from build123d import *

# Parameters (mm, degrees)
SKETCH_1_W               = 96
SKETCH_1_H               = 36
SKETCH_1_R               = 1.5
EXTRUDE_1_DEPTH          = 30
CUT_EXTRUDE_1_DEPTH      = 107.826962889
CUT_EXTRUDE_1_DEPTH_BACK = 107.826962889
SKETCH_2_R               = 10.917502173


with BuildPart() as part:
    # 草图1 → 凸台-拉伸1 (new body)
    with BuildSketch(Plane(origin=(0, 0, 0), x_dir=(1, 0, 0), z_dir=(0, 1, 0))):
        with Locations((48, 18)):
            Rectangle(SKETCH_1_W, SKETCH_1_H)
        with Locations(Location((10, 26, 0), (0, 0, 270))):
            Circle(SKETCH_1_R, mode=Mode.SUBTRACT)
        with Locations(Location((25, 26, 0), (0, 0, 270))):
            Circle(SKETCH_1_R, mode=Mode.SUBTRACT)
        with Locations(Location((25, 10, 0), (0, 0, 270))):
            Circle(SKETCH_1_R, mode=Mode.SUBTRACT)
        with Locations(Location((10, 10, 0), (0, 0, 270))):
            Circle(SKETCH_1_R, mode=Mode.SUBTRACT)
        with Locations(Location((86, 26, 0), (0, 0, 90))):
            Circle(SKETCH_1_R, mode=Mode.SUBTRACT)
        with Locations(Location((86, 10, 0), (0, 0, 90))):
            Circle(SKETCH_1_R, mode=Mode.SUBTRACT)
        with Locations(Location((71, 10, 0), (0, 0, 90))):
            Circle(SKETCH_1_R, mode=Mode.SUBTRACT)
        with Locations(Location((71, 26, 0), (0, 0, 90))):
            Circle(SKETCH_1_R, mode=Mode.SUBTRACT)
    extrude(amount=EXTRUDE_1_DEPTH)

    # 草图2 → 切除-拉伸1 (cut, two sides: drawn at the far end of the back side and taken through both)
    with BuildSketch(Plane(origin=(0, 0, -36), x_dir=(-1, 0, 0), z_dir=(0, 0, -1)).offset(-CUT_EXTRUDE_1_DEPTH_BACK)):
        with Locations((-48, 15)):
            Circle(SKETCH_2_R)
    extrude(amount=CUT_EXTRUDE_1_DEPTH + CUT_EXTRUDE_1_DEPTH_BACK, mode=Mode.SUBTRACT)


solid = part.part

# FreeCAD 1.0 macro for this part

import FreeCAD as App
import Part
import Sketcher
Q = App.Units.Quantity


def add_polygon(sketch, points):
    """Adds a closed chain of lines whose ends are joined by coincident constraints."""
    first, n = sketch.GeometryCount, len(points)
    for a, b in zip(points, points[1:] + points[:1]):
        sketch.addGeometry(Part.LineSegment(App.Vector(*a, 0), App.Vector(*b, 0)), False)
    for i in range(n):
        sketch.addConstraint(Sketcher.Constraint("Coincident", first + i, 2, first + (i + 1) % n, 1))

doc = App.newDocument("Part")
body = doc.addObject("PartDesign::Body", "Body")

sketch1 = doc.addObject("Sketcher::SketchObject", "Sketch")
body.addObject(sketch1)
sketch1.AttachmentSupport = (doc.XZ_Plane, [""])
sketch1.MapMode = "FlatFace"
add_polygon(sketch1, [(0, -36), (0, 0), (96, 0), (96, -36)])
sketch1.addGeometry(Part.Circle(App.Vector(10, -10, 0), App.Vector(0, 0, 1), 1.5), False)
sketch1.addGeometry(Part.Circle(App.Vector(25, -10, 0), App.Vector(0, 0, 1), 1.5), False)
sketch1.addGeometry(Part.Circle(App.Vector(71, -10, 0), App.Vector(0, 0, 1), 1.5), False)
sketch1.addGeometry(Part.Circle(App.Vector(86, -10, 0), App.Vector(0, 0, 1), 1.5), False)
sketch1.addGeometry(Part.Circle(App.Vector(10, -26, 0), App.Vector(0, 0, 1), 1.5), False)
sketch1.addGeometry(Part.Circle(App.Vector(25, -26, 0), App.Vector(0, 0, 1), 1.5), False)
sketch1.addGeometry(Part.Circle(App.Vector(71, -26, 0), App.Vector(0, 0, 1), 1.5), False)
sketch1.addGeometry(Part.Circle(App.Vector(86, -26, 0), App.Vector(0, 0, 1), 1.5), False)
sketch1.addConstraint(Sketcher.Constraint("Vertical", 0))
sketch1.addConstraint(Sketcher.Constraint("Horizontal", 1))
sketch1.addConstraint(Sketcher.Constraint("Vertical", 2))
sketch1.addConstraint(Sketcher.Constraint("Horizontal", 3))
sketch1.addConstraint(Sketcher.Constraint("Coincident", 0, 2, -1, 1))
sketch1.addConstraint(Sketcher.Constraint("Equal", 4, 5))
sketch1.addConstraint(Sketcher.Constraint("Equal", 5, 6))
sketch1.addConstraint(Sketcher.Constraint("Equal", 6, 7))
sketch1.addConstraint(Sketcher.Constraint("Equal", 7, 8))
sketch1.addConstraint(Sketcher.Constraint("Equal", 8, 9))
sketch1.addConstraint(Sketcher.Constraint("Equal", 9, 10))
sketch1.addConstraint(Sketcher.Constraint("Equal", 10, 11))
sketch1.addConstraint(Sketcher.Constraint("Horizontal", 4, 3, 5, 3))
sketch1.addConstraint(Sketcher.Constraint("Horizontal", 5, 3, 6, 3))
sketch1.addConstraint(Sketcher.Constraint("Horizontal", 6, 3, 7, 3))
sketch1.addConstraint(Sketcher.Constraint("Horizontal", 8, 3, 9, 3))
sketch1.addConstraint(Sketcher.Constraint("Horizontal", 9, 3, 10, 3))
sketch1.addConstraint(Sketcher.Constraint("Horizontal", 10, 3, 11, 3))
sketch1.addConstraint(Sketcher.Constraint("Vertical", 4, 3, 8, 3))
sketch1.addConstraint(Sketcher.Constraint("Vertical", 5, 3, 9, 3))
sketch1.addConstraint(Sketcher.Constraint("Vertical", 6, 3, 10, 3))
sketch1.addConstraint(Sketcher.Constraint("Vertical", 7, 3, 11, 3))
sketch1.addConstraint(Sketcher.Constraint("Diameter", 4, Q("3 mm")))
sketch1.addConstraint(Sketcher.Constraint("DistanceX", 1, 1, 1, 2, Q("96 mm")))
sketch1.addConstraint(Sketcher.Constraint("DistanceY", 0, 1, 0, 2, Q("36 mm")))
sketch1.addConstraint(Sketcher.Constraint("DistanceX", -1, 1, 4, 3, Q("10 mm")))
sketch1.addConstraint(Sketcher.Constraint("DistanceY", 4, 3, -1, 1, Q("10 mm")))
sketch1.addConstraint(Sketcher.Constraint("DistanceX", -1, 1, 5, 3, Q("25 mm")))
sketch1.addConstraint(Sketcher.Constraint("DistanceX", -1, 1, 6, 3, Q("71 mm")))
sketch1.addConstraint(Sketcher.Constraint("DistanceX", -1, 1, 7, 3, Q("86 mm")))
sketch1.addConstraint(Sketcher.Constraint("DistanceY", 8, 3, -1, 1, Q("26 mm")))
pad1 = doc.addObject("PartDesign::Pad", "Pad")
body.addObject(pad1)
pad1.Profile = sketch1
pad1.Length = 30
pad1.Reversed = True

sketch2 = doc.addObject("Sketcher::SketchObject", "Sketch001")
body.addObject(sketch2)
sketch2.AttachmentSupport = (doc.XY_Plane, [""])
sketch2.MapMode = "FlatFace"
sketch2.AttachmentOffset = App.Placement(App.Vector(0, 0, -36), App.Rotation())
sketch2.addGeometry(Part.Circle(App.Vector(48, 15, 0), App.Vector(0, 0, 1), 10.917502), False)
sketch2.addConstraint(Sketcher.Constraint("DistanceX", -1, 1, 0, 3, Q("48 mm")))
sketch2.addConstraint(Sketcher.Constraint("DistanceY", -1, 1, 0, 3, Q("15 mm")))
sketch2.addConstraint(Sketcher.Constraint("Diameter", 0, Q("21.835004 mm")))
pocket1 = doc.addObject("PartDesign::Pocket", "Pocket")
body.addObject(pocket1)
pocket1.Profile = sketch2
pocket1.Type = "ThroughAll"
pocket1.Midplane = True

doc.recompute()
